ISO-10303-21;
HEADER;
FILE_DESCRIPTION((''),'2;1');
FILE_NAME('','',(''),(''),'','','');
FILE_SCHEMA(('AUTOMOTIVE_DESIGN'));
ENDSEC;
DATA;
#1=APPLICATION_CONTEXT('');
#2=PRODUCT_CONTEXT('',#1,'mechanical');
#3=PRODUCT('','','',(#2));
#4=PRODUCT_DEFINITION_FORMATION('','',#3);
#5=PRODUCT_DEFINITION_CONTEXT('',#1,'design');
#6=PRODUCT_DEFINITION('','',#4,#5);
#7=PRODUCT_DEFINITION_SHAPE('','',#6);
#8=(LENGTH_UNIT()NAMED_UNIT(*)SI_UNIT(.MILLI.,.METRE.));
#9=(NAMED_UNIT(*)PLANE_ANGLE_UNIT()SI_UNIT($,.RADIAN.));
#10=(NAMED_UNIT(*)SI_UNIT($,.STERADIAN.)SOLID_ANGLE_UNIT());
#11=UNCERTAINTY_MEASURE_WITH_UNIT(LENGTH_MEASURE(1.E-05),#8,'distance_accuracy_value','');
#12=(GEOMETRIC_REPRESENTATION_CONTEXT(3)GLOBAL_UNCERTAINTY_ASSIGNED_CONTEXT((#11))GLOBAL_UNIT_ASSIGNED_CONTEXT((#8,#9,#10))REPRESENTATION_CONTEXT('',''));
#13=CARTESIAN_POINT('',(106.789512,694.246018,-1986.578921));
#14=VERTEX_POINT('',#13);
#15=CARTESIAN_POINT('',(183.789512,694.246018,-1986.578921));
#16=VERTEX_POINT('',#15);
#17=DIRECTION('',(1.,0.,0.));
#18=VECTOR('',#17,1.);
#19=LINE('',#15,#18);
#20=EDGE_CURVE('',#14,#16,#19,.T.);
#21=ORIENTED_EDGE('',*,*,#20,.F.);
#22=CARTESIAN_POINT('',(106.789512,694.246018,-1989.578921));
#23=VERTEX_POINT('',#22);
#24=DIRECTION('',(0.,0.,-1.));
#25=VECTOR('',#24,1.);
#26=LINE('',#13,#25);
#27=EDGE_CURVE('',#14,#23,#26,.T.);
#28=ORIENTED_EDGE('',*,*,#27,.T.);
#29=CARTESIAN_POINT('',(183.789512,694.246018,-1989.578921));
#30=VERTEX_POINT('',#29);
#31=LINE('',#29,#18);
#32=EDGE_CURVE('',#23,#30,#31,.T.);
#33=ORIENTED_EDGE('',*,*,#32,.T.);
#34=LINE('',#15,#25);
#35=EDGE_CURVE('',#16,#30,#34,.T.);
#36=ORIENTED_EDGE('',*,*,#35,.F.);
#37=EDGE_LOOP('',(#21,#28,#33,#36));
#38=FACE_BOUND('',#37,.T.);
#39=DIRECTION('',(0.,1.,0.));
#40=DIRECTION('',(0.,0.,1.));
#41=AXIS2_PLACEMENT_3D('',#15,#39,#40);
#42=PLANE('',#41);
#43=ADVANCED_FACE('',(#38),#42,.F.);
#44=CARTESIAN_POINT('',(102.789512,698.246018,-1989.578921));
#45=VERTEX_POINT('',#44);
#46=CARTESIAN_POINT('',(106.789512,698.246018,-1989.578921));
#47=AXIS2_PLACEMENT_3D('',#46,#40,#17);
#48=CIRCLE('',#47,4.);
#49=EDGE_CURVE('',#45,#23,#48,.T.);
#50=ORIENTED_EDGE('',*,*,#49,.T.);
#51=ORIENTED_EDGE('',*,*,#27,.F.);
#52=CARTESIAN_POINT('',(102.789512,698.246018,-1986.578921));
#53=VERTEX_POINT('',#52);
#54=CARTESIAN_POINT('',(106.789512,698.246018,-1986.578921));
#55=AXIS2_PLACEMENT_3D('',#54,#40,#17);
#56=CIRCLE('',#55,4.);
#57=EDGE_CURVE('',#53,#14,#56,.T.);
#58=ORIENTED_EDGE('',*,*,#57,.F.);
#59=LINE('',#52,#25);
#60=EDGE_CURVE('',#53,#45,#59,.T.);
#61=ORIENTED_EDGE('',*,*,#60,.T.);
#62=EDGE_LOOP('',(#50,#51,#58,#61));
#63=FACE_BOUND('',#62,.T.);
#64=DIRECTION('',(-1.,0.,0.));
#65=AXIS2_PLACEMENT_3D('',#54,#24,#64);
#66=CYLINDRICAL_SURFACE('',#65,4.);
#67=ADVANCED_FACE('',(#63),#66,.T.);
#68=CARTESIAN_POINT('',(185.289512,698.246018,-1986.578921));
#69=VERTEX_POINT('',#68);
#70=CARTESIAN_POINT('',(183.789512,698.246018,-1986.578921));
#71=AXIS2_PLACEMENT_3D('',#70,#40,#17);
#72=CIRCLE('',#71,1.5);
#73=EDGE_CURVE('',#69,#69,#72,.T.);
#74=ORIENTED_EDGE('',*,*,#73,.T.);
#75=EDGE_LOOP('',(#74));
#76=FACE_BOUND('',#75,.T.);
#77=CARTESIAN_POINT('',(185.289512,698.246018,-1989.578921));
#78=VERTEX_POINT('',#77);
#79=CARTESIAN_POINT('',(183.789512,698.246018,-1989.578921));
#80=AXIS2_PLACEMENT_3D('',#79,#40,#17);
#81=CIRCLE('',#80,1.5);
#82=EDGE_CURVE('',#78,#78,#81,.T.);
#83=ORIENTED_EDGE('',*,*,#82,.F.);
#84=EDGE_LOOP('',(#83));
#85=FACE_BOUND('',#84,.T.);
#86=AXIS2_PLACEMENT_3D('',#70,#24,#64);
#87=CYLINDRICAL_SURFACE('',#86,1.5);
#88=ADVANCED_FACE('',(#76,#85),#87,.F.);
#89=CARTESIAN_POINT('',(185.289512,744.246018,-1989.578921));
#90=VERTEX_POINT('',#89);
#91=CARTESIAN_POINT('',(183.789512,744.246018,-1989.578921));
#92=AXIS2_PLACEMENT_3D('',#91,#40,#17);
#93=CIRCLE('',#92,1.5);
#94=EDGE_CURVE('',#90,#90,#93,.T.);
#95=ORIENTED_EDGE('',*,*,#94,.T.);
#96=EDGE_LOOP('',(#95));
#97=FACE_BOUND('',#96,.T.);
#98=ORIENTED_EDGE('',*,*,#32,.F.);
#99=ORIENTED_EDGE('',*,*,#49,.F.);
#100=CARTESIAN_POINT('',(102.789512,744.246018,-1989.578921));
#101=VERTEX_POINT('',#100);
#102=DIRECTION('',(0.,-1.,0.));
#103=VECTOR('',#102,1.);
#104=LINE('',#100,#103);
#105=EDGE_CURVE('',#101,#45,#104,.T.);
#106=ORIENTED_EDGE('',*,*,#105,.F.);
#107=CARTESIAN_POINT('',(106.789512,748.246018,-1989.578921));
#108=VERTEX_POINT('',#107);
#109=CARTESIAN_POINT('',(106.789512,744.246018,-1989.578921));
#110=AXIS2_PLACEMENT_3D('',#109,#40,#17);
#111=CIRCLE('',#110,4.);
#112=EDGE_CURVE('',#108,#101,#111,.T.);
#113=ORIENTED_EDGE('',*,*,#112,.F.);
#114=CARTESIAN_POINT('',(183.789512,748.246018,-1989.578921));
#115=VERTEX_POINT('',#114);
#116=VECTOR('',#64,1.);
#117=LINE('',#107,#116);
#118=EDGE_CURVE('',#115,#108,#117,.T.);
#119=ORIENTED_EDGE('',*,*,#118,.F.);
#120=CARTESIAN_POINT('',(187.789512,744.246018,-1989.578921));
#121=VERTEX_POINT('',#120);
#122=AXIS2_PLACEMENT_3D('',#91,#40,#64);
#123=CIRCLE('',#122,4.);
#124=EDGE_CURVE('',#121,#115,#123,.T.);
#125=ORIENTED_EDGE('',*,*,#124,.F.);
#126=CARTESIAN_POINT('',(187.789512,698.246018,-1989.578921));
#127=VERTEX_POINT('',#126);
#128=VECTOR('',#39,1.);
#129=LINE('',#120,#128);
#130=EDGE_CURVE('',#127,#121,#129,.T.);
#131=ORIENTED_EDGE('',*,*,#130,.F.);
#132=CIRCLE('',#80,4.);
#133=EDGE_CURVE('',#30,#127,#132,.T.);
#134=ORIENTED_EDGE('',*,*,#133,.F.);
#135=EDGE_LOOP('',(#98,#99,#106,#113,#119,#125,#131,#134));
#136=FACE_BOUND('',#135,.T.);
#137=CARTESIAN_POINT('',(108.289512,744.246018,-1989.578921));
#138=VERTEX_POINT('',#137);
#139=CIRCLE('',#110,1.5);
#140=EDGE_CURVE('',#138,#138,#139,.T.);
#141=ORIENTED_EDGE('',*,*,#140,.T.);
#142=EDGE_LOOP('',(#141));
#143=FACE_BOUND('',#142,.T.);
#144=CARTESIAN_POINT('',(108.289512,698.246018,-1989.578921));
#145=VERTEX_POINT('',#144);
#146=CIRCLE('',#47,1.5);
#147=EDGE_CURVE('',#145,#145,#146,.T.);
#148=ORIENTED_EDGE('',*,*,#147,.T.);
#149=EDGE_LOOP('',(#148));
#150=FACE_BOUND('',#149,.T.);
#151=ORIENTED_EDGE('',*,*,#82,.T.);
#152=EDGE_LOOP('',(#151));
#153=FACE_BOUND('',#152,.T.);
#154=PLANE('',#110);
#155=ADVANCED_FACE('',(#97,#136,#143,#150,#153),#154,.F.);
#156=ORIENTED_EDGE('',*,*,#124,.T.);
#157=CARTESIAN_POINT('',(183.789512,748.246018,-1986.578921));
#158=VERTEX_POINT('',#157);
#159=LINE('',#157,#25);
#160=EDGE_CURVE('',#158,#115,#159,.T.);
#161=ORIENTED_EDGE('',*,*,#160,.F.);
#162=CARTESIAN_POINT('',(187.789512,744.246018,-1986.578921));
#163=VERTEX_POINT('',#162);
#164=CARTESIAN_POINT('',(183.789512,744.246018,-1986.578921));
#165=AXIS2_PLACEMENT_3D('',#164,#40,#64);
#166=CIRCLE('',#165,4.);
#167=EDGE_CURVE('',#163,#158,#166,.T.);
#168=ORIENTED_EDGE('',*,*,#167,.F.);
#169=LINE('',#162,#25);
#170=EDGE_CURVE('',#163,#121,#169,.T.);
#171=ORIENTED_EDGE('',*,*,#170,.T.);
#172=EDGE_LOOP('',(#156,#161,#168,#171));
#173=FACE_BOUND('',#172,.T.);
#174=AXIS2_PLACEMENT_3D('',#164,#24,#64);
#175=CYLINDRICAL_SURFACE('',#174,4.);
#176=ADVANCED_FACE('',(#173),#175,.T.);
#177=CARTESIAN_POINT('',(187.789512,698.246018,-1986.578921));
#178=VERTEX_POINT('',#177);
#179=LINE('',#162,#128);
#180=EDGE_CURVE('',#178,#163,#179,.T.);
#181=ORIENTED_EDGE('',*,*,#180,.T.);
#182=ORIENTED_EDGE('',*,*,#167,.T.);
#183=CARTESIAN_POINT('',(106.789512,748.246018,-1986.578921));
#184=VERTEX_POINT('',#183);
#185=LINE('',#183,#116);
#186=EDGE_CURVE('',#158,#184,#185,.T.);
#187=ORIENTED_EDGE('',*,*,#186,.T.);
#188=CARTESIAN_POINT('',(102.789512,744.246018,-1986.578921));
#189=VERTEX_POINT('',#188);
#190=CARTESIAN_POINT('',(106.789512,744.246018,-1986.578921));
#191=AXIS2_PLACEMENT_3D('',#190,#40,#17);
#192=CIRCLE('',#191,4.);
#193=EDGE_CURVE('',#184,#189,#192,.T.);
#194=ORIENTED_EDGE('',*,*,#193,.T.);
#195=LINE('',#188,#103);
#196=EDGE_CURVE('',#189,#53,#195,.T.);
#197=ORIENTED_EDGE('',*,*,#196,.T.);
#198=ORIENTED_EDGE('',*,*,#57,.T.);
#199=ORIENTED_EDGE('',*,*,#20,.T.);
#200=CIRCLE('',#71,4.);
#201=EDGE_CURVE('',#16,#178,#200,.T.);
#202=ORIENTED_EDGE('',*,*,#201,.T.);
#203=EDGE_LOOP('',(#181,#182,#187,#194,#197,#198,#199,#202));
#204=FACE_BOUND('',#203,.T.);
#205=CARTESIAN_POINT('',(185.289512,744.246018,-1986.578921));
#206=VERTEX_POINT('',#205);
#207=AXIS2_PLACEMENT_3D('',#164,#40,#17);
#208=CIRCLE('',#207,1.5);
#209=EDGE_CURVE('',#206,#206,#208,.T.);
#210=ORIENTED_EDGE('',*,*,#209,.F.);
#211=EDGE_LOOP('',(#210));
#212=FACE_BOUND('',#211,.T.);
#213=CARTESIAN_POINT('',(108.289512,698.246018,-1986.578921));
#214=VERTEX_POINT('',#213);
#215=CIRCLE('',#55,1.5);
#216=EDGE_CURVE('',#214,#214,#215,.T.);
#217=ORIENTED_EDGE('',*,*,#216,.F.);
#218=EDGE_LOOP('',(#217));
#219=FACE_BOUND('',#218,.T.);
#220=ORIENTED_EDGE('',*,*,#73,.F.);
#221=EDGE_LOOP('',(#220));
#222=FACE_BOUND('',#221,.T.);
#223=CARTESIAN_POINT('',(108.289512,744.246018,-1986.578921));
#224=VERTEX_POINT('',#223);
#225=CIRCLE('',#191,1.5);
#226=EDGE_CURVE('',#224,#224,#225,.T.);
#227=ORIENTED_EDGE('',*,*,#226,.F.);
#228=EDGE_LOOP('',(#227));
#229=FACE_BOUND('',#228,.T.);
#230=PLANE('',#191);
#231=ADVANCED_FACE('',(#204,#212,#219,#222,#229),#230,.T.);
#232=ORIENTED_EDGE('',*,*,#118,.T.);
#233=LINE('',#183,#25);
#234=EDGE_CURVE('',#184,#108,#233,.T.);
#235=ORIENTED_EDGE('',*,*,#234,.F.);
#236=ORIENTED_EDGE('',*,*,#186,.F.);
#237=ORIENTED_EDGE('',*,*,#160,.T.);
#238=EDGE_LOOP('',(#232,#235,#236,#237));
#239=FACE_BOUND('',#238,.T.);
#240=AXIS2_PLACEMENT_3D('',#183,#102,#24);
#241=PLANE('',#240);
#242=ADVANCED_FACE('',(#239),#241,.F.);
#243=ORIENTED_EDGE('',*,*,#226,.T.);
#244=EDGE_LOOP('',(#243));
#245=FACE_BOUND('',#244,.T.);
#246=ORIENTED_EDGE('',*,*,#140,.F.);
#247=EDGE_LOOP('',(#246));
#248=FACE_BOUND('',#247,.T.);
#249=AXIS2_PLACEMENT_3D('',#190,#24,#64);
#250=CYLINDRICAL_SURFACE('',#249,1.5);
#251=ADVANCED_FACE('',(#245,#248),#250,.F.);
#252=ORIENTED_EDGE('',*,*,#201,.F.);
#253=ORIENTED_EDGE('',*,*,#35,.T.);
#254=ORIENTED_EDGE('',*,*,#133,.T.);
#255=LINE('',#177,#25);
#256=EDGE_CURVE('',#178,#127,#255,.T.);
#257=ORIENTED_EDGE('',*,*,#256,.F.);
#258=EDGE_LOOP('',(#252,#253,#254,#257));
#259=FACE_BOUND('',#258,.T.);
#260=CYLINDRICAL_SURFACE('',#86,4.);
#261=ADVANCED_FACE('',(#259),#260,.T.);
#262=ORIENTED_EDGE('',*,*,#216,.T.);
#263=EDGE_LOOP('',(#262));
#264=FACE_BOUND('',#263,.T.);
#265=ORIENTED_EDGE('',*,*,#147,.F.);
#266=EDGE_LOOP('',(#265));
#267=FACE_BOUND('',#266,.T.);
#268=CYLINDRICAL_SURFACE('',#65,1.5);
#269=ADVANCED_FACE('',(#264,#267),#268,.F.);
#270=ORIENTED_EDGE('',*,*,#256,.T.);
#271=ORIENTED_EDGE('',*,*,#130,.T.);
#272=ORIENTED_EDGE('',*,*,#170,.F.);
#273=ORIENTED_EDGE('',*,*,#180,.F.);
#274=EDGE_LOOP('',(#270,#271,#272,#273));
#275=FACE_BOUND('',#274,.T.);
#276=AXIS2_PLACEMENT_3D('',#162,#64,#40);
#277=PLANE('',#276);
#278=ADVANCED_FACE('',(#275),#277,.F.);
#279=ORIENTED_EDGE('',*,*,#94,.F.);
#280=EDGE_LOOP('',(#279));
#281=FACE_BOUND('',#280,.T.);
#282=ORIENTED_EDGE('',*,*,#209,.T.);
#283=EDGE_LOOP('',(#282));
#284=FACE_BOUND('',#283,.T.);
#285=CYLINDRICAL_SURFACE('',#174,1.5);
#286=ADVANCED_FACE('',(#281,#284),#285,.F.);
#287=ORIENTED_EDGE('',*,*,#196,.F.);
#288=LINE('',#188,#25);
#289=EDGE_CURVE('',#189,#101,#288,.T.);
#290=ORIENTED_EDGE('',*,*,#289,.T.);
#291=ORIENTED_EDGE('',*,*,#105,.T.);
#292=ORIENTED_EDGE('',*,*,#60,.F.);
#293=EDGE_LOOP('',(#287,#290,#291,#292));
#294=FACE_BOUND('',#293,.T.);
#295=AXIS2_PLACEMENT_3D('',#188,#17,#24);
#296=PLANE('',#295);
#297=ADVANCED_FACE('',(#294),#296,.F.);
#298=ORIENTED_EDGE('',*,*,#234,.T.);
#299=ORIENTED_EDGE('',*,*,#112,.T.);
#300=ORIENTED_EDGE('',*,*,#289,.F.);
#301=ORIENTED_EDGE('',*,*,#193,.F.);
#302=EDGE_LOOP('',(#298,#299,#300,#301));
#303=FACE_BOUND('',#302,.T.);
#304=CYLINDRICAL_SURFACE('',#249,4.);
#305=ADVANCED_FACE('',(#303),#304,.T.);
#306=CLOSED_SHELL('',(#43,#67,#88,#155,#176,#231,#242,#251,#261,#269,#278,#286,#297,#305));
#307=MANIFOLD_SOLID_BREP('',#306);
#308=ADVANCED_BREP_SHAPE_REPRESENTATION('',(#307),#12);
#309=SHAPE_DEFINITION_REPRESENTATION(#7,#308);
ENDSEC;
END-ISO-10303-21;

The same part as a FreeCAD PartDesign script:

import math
import FreeCAD as App
import Part
import Sketcher
from FreeCAD import Vector
Q = App.Units.Quantity

doc = App.newDocument("Part")
params = doc.addObject("Spreadsheet::Sheet", "Params")
for row, (alias, value) in enumerate([
    ("sketch1_diameter", "3 mm"),
    ("sketch1_radius", "4 mm"),
    ("sketch1_width", "77 mm"),
    ("sketch1_height", "46 mm"),
    ("pad1_length", "3 mm"),
], start=1):
    params.set(f"A{row}", alias)
    params.set(f"B{row}", "=" + value)
    params.setAlias(f"B{row}", alias)

body = doc.addObject("PartDesign::Body", "Body")

# Sketch on XY plane
sketch1 = body.newObject("Sketcher::SketchObject", "Sketch")
sketch1.AttachmentSupport = (doc.getObject("XY_Plane"), [""])
sketch1.MapMode = "FlatFace"
sketch1.AttachmentOffset = App.Placement(Vector(0, 0, -1989.578921), App.Rotation())
sketch1.addGeometry([
    Part.LineSegment(Vector(183.789512, 748.246018, 0), Vector(106.789512, 748.246018, 0)),  # 0
    Part.ArcOfCircle(Part.Circle(Vector(106.789512, 744.246018, 0), Vector(0, 0, 1), 4), math.radians(90), math.radians(180)),  # 1
    Part.LineSegment(Vector(102.789512, 744.246018, 0), Vector(102.789512, 698.246018, 0)),  # 2
    Part.ArcOfCircle(Part.Circle(Vector(106.789512, 698.246018, 0), Vector(0, 0, 1), 4), math.radians(180), math.radians(270)),  # 3
    Part.LineSegment(Vector(106.789512, 694.246018, 0), Vector(183.789512, 694.246018, 0)),  # 4
    Part.ArcOfCircle(Part.Circle(Vector(183.789512, 698.246018, 0), Vector(0, 0, 1), 4), math.radians(-90), math.radians(0)),  # 5
    Part.LineSegment(Vector(187.789512, 698.246018, 0), Vector(187.789512, 744.246018, 0)),  # 6
    Part.ArcOfCircle(Part.Circle(Vector(183.789512, 744.246018, 0), Vector(0, 0, 1), 4), math.radians(0), math.radians(90)),  # 7
    Part.Circle(Vector(183.789512, 698.246018, 0), Vector(0, 0, 1), 1.5),  # 8
    Part.Circle(Vector(106.789512, 698.246018, 0), Vector(0, 0, 1), 1.5),  # 9
    Part.Circle(Vector(183.789512, 744.246018, 0), Vector(0, 0, 1), 1.5),  # 10
    Part.Circle(Vector(106.789512, 744.246018, 0), Vector(0, 0, 1), 1.5),  # 11
], False)
sketch1.addConstraint([
    Sketcher.Constraint("Tangent", 0, 2, 1, 1),
    Sketcher.Constraint("Tangent", 1, 2, 2, 1),
    Sketcher.Constraint("Tangent", 2, 2, 3, 1),
    Sketcher.Constraint("Tangent", 3, 2, 4, 1),
    Sketcher.Constraint("Tangent", 4, 2, 5, 1),
    Sketcher.Constraint("Tangent", 5, 2, 6, 1),
    Sketcher.Constraint("Tangent", 6, 2, 7, 1),
    Sketcher.Constraint("Tangent", 7, 2, 0, 1),
    Sketcher.Constraint("Horizontal", 0),
    Sketcher.Constraint("Vertical", 2),
    Sketcher.Constraint("Horizontal", 4),
    Sketcher.Constraint("Vertical", 6),
    Sketcher.Constraint("Coincident", 8, 3, 5, 3),
    Sketcher.Constraint("Coincident", 9, 3, 3, 3),
    Sketcher.Constraint("Coincident", 10, 3, 7, 3),
    Sketcher.Constraint("Coincident", 11, 3, 1, 3),
    Sketcher.Constraint("Equal", 1, 3),
    Sketcher.Constraint("Equal", 3, 5),
    Sketcher.Constraint("Equal", 5, 7),
    Sketcher.Constraint("Equal", 8, 9),
    Sketcher.Constraint("Equal", 9, 10),
    Sketcher.Constraint("Equal", 10, 11),
    Sketcher.Constraint("Diameter", 8, Q("3 mm")),
    Sketcher.Constraint("Radius", 1, Q("4 mm")),
    Sketcher.Constraint("DistanceX", 0, 2, 0, 1, Q("77 mm")),
    Sketcher.Constraint("DistanceY", 2, 2, 2, 1, Q("46 mm")),
    Sketcher.Constraint("DistanceX", -1, 1, 1, 3, Q("106.789512 mm")),
    Sketcher.Constraint("DistanceY", -1, 1, 1, 3, Q("744.246018 mm")),
])
sketch1.setExpression("Constraints[22]", "Params.sketch1_diameter")
sketch1.setExpression("Constraints[23]", "Params.sketch1_radius")
sketch1.setExpression("Constraints[24]", "Params.sketch1_width")
sketch1.setExpression("Constraints[25]", "Params.sketch1_height")
pad1 = body.newObject("PartDesign::Pad", "Pad")
pad1.Profile = sketch1
pad1.setExpression("Length", "Params.pad1_length")

doc.recompute()
